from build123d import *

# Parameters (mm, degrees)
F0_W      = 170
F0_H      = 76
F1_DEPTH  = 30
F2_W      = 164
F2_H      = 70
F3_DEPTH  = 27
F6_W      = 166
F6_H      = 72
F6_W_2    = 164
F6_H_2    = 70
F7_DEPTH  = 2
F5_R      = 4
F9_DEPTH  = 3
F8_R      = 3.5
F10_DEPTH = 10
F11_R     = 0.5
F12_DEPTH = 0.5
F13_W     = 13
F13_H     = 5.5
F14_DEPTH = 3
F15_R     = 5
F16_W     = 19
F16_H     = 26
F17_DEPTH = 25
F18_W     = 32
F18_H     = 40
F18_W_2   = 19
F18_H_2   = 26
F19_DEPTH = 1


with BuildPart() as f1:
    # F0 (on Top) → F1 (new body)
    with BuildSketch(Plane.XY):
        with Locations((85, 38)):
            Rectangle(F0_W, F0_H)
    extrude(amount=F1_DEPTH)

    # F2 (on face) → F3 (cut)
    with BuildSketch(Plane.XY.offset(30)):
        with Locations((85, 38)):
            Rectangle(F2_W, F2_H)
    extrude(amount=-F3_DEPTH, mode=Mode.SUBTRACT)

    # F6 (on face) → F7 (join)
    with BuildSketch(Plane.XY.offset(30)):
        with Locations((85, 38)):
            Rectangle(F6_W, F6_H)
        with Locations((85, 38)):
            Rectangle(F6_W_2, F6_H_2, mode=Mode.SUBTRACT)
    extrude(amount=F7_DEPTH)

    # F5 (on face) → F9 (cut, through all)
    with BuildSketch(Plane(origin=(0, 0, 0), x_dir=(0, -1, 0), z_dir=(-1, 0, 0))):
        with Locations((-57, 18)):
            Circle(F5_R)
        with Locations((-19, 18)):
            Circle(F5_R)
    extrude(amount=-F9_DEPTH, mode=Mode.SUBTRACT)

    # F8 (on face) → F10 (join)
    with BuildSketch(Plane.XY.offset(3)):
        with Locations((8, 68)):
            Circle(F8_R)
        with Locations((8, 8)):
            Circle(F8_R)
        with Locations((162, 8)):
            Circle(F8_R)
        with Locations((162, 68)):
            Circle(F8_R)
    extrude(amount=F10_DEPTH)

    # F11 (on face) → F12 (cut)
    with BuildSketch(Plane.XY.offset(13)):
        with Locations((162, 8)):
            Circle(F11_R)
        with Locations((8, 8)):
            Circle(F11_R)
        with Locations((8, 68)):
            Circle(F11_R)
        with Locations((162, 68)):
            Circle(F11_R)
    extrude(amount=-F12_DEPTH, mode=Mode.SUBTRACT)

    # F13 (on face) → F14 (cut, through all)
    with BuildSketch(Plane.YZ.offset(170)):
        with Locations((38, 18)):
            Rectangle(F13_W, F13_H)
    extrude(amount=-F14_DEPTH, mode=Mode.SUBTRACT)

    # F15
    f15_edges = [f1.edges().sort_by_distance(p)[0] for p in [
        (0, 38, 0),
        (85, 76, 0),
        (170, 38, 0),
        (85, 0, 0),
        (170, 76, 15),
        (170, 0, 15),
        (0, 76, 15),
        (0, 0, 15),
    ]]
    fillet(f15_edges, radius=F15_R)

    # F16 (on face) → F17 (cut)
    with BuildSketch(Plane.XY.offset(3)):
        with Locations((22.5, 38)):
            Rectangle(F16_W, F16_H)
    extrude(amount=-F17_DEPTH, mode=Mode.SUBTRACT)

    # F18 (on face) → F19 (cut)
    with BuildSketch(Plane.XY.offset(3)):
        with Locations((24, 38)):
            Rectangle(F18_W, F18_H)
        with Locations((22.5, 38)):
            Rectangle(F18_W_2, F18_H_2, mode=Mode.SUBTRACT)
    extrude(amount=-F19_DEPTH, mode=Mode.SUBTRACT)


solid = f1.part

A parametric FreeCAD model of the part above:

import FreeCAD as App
import Part
import Sketcher
from FreeCAD import Vector
Q = App.Units.Quantity


def edges_at(feature, points):
    """Names of the edges that pass closest to the given points."""
    edges = feature.Shape.Edges
    near = lambda p: min(range(len(edges)), key=lambda i: edges[i].distToShape(Part.Vertex(*p))[0])
    return sorted({f"Edge{near(p) + 1}" for p in points})


def add_polygon(sketch, points):
    """Adds a closed chain of lines whose ends are joined by coincident constraints."""
    first, n = sketch.GeometryCount, len(points)
    for a, b in zip(points, points[1:] + points[:1]):
        sketch.addGeometry(Part.LineSegment(App.Vector(*a, 0), App.Vector(*b, 0)), False)
    for i in range(n):
        sketch.addConstraint(Sketcher.Constraint("Coincident", first + i, 2, first + (i + 1) % n, 1))

doc = App.newDocument("Part")
params = doc.addObject("Spreadsheet::Sheet", "Params")
for row, (alias, value) in enumerate([
    ("sketch1_width", "170 mm"),
    ("sketch1_height", "76 mm"),
    ("pad1_length", "30 mm"),
    ("sketch2_width", "164 mm"),
    ("sketch2_height", "70 mm"),
    ("pocket1_length", "27 mm"),
    ("sketch3_width", "166 mm"),
    ("sketch3_width2", "164 mm"),
    ("sketch3_height", "72 mm"),
    ("sketch3_height2", "70 mm"),
    ("pad2_length", "2 mm"),
    ("sketch4_diameter", "8 mm"),
    ("pocket2_length", "3 mm"),
    ("sketch5_diameter", "7 mm"),
    ("pad3_length", "10 mm"),
    ("sketch6_diameter", "1 mm"),
    ("pocket3_length", "0.5 mm"),
    ("sketch7_width", "13 mm"),
    ("sketch7_height", "5.5 mm"),
    ("pocket4_length", "3 mm"),
    ("fillet_radius", "5 mm"),
    ("sketch8_width", "19 mm"),
    ("sketch8_height", "26 mm"),
    ("pocket5_length", "25 mm"),
    ("sketch9_width", "32 mm"),
    ("sketch9_width2", "19 mm"),
    ("sketch9_height", "40 mm"),
    ("sketch9_height2", "26 mm"),
    ("pocket6_length", "1 mm"),
], start=1):
    params.set(f"A{row}", alias)
    params.set(f"B{row}", "=" + value)
    params.setAlias(f"B{row}", alias)

body = doc.addObject("PartDesign::Body", "Body")

# Sketch on XY plane
sketch1 = body.newObject("Sketcher::SketchObject", "Sketch")
sketch1.AttachmentSupport = (doc.getObject("XY_Plane"), [""])
sketch1.MapMode = "FlatFace"
add_polygon(sketch1, [(0, 76), (0, 0), (170, 0), (170, 76)])  # lines 0-3
sketch1.addConstraint(Sketcher.Constraint("Vertical", 0))
sketch1.addConstraint(Sketcher.Constraint("Horizontal", 1))
sketch1.addConstraint(Sketcher.Constraint("Vertical", 2))
sketch1.addConstraint(Sketcher.Constraint("Horizontal", 3))
sketch1.addConstraint(Sketcher.Constraint("Coincident", 0, 2, -1, 1))
sketch1.addConstraint(Sketcher.Constraint("DistanceX", 1, 1, 1, 2, Q("170 mm")))
sketch1.addConstraint(Sketcher.Constraint("DistanceY", 0, 2, 0, 1, Q("76 mm")))
sketch1.setExpression("Constraints[9]", "Params.sketch1_width")
sketch1.setExpression("Constraints[10]", "Params.sketch1_height")
pad1 = body.newObject("PartDesign::Pad", "Pad")
pad1.Profile = sketch1
pad1.setExpression("Length", "Params.pad1_length")

# Sketch on XY plane
sketch2 = body.newObject("Sketcher::SketchObject", "Sketch001")
sketch2.AttachmentSupport = (doc.getObject("XY_Plane"), [""])
sketch2.MapMode = "FlatFace"
sketch2.AttachmentOffset = App.Placement(Vector(0, 0, 30), App.Rotation())
add_polygon(sketch2, [(3, 73), (3, 3), (167, 3), (167, 73)])  # lines 0-3
sketch2.addConstraint(Sketcher.Constraint("Vertical", 0))
sketch2.addConstraint(Sketcher.Constraint("Horizontal", 1))
sketch2.addConstraint(Sketcher.Constraint("Vertical", 2))
sketch2.addConstraint(Sketcher.Constraint("Horizontal", 3))
sketch2.addConstraint(Sketcher.Constraint("DistanceX", 1, 1, 1, 2, Q("164 mm")))
sketch2.addConstraint(Sketcher.Constraint("DistanceY", 0, 2, 0, 1, Q("70 mm")))
sketch2.addConstraint(Sketcher.Constraint("DistanceX", -1, 1, 0, 2, Q("3 mm")))
sketch2.addConstraint(Sketcher.Constraint("DistanceY", -1, 1, 0, 2, Q("3 mm")))
sketch2.setExpression("Constraints[8]", "Params.sketch2_width")
sketch2.setExpression("Constraints[9]", "Params.sketch2_height")
pocket1 = body.newObject("PartDesign::Pocket", "Pocket")
pocket1.Profile = sketch2
pocket1.setExpression("Length", "Params.pocket1_length")

# Sketch on XY plane
sketch3 = body.newObject("Sketcher::SketchObject", "Sketch002")
sketch3.AttachmentSupport = (doc.getObject("XY_Plane"), [""])
sketch3.MapMode = "FlatFace"
sketch3.AttachmentOffset = App.Placement(Vector(0, 0, 30), App.Rotation())
add_polygon(sketch3, [(2, 74), (2, 2), (168, 2), (168, 74)])  # lines 0-3
add_polygon(sketch3, [(167, 3), (3, 3), (3, 73), (167, 73)])  # lines 4-7
sketch3.addConstraint(Sketcher.Constraint("Vertical", 0))
sketch3.addConstraint(Sketcher.Constraint("Horizontal", 1))
sketch3.addConstraint(Sketcher.Constraint("Vertical", 2))
sketch3.addConstraint(Sketcher.Constraint("Horizontal", 3))
sketch3.addConstraint(Sketcher.Constraint("Horizontal", 4))
sketch3.addConstraint(Sketcher.Constraint("Vertical", 5))
sketch3.addConstraint(Sketcher.Constraint("Horizontal", 6))
sketch3.addConstraint(Sketcher.Constraint("Vertical", 7))
sketch3.addConstraint(Sketcher.Constraint("DistanceX", 1, 1, 1, 2, Q("166 mm")))
sketch3.addConstraint(Sketcher.Constraint("DistanceX", 4, 2, 4, 1, Q("164 mm")))
sketch3.addConstraint(Sketcher.Constraint("DistanceY", 0, 2, 0, 1, Q("72 mm")))
sketch3.addConstraint(Sketcher.Constraint("DistanceY", 5, 1, 5, 2, Q("70 mm")))
sketch3.addConstraint(Sketcher.Constraint("DistanceX", -1, 1, 0, 2, Q("2 mm")))
sketch3.addConstraint(Sketcher.Constraint("DistanceY", -1, 1, 0, 2, Q("2 mm")))
sketch3.addConstraint(Sketcher.Constraint("DistanceX", -1, 1, 4, 2, Q("3 mm")))
sketch3.addConstraint(Sketcher.Constraint("DistanceY", -1, 1, 4, 2, Q("3 mm")))
sketch3.setExpression("Constraints[16]", "Params.sketch3_width")
sketch3.setExpression("Constraints[17]", "Params.sketch3_width2")
sketch3.setExpression("Constraints[18]", "Params.sketch3_height")
sketch3.setExpression("Constraints[19]", "Params.sketch3_height2")
pad2 = body.newObject("PartDesign::Pad", "Pad001")
pad2.Profile = sketch3
pad2.setExpression("Length", "Params.pad2_length")

# Sketch on YZ plane
sketch4 = body.newObject("Sketcher::SketchObject", "Sketch003")
sketch4.AttachmentSupport = (doc.getObject("YZ_Plane"), [""])
sketch4.MapMode = "FlatFace"
sketch4.addGeometry(Part.Circle(Vector(57, 18, 0), Vector(0, 0, 1), 4), False)
sketch4.addGeometry(Part.Circle(Vector(19, 18, 0), Vector(0, 0, 1), 4), False)
sketch4.addConstraint(Sketcher.Constraint("Equal", 0, 1))
sketch4.addConstraint(Sketcher.Constraint("Horizontal", 0, 3, 1, 3))
sketch4.addConstraint(Sketcher.Constraint("Diameter", 0, Q("8 mm")))
sketch4.addConstraint(Sketcher.Constraint("DistanceX", -1, 1, 0, 3, Q("57 mm")))
sketch4.addConstraint(Sketcher.Constraint("DistanceY", -1, 1, 0, 3, Q("18 mm")))
sketch4.addConstraint(Sketcher.Constraint("DistanceX", -1, 1, 1, 3, Q("19 mm")))
sketch4.setExpression("Constraints[2]", "Params.sketch4_diameter")
pocket2 = body.newObject("PartDesign::Pocket", "Pocket001")
pocket2.Profile = sketch4
pocket2.setExpression("Length", "Params.pocket2_length")
pocket2.Reversed = True

# Sketch on XY plane
sketch5 = body.newObject("Sketcher::SketchObject", "Sketch004")
sketch5.AttachmentSupport = (doc.getObject("XY_Plane"), [""])
sketch5.MapMode = "FlatFace"
sketch5.AttachmentOffset = App.Placement(Vector(0, 0, 3), App.Rotation())
sketch5.addGeometry(Part.Circle(Vector(8, 68, 0), Vector(0, 0, 1), 3.5), False)
sketch5.addGeometry(Part.Circle(Vector(8, 8, 0), Vector(0, 0, 1), 3.5), False)
sketch5.addGeometry(Part.Circle(Vector(162, 8, 0), Vector(0, 0, 1), 3.5), False)
sketch5.addGeometry(Part.Circle(Vector(162, 68, 0), Vector(0, 0, 1), 3.5), False)
sketch5.addConstraint(Sketcher.Constraint("Equal", 0, 1))
sketch5.addConstraint(Sketcher.Constraint("Equal", 1, 2))
sketch5.addConstraint(Sketcher.Constraint("Equal", 2, 3))
sketch5.addConstraint(Sketcher.Constraint("Horizontal", 1, 3, 2, 3))
sketch5.addConstraint(Sketcher.Constraint("Horizontal", 0, 3, 3, 3))
sketch5.addConstraint(Sketcher.Constraint("Vertical", 0, 3, 1, 3))
sketch5.addConstraint(Sketcher.Constraint("Vertical", 2, 3, 3, 3))
sketch5.addConstraint(Sketcher.Constraint("Diameter", 0, Q("7 mm")))
sketch5.addConstraint(Sketcher.Constraint("DistanceX", -1, 1, 0, 3, Q("8 mm")))
sketch5.addConstraint(Sketcher.Constraint("DistanceY", -1, 1, 0, 3, Q("68 mm")))
sketch5.addConstraint(Sketcher.Constraint("DistanceY", -1, 1, 1, 3, Q("8 mm")))
sketch5.addConstraint(Sketcher.Constraint("DistanceX", -1, 1, 2, 3, Q("162 mm")))
sketch5.setExpression("Constraints[7]", "Params.sketch5_diameter")
pad3 = body.newObject("PartDesign::Pad", "Pad002")
pad3.Profile = sketch5
pad3.setExpression("Length", "Params.pad3_length")

# Sketch on XY plane
sketch6 = body.newObject("Sketcher::SketchObject", "Sketch005")
sketch6.AttachmentSupport = (doc.getObject("XY_Plane"), [""])
sketch6.MapMode = "FlatFace"
sketch6.AttachmentOffset = App.Placement(Vector(0, 0, 13), App.Rotation())
sketch6.addGeometry(Part.Circle(Vector(162, 8, 0), Vector(0, 0, 1), 0.5), False)
sketch6.addGeometry(Part.Circle(Vector(8, 8, 0), Vector(0, 0, 1), 0.5), False)
sketch6.addGeometry(Part.Circle(Vector(8, 68, 0), Vector(0, 0, 1), 0.5), False)
sketch6.addGeometry(Part.Circle(Vector(162, 68, 0), Vector(0, 0, 1), 0.5), False)
sketch6.addConstraint(Sketcher.Constraint("Equal", 0, 1))
sketch6.addConstraint(Sketcher.Constraint("Equal", 1, 2))
sketch6.addConstraint(Sketcher.Constraint("Equal", 2, 3))
sketch6.addConstraint(Sketcher.Constraint("Horizontal", 0, 3, 1, 3))
sketch6.addConstraint(Sketcher.Constraint("Horizontal", 2, 3, 3, 3))
sketch6.addConstraint(Sketcher.Constraint("Vertical", 1, 3, 2, 3))
sketch6.addConstraint(Sketcher.Constraint("Vertical", 0, 3, 3, 3))
sketch6.addConstraint(Sketcher.Constraint("Diameter", 0, Q("1 mm")))
sketch6.addConstraint(Sketcher.Constraint("DistanceX", -1, 1, 0, 3, Q("162 mm")))
sketch6.addConstraint(Sketcher.Constraint("DistanceY", -1, 1, 0, 3, Q("8 mm")))
sketch6.addConstraint(Sketcher.Constraint("DistanceX", -1, 1, 1, 3, Q("8 mm")))
sketch6.addConstraint(Sketcher.Constraint("DistanceY", -1, 1, 2, 3, Q("68 mm")))
sketch6.setExpression("Constraints[7]", "Params.sketch6_diameter")
pocket3 = body.newObject("PartDesign::Pocket", "Pocket002")
pocket3.Profile = sketch6
pocket3.setExpression("Length", "Params.pocket3_length")

# Sketch on YZ plane
sketch7 = body.newObject("Sketcher::SketchObject", "Sketch006")
sketch7.AttachmentSupport = (doc.getObject("YZ_Plane"), [""])
sketch7.MapMode = "FlatFace"
sketch7.AttachmentOffset = App.Placement(Vector(0, 0, 170), App.Rotation())
add_polygon(sketch7, [(32, 21), (32, 15), (44, 15), (44, 21)])  # lines 0-3
sketch7.addConstraint(Sketcher.Constraint("Vertical", 0))
sketch7.addConstraint(Sketcher.Constraint("Horizontal", 1))
sketch7.addConstraint(Sketcher.Constraint("Vertical", 2))
sketch7.addConstraint(Sketcher.Constraint("Horizontal", 3))
sketch7.addConstraint(Sketcher.Constraint("DistanceX", 1, 1, 1, 2, Q("13 mm")))
sketch7.addConstraint(Sketcher.Constraint("DistanceY", 0, 2, 0, 1, Q("5.5 mm")))
sketch7.addConstraint(Sketcher.Constraint("DistanceX", -1, 1, 0, 2, Q("31.5 mm")))
sketch7.addConstraint(Sketcher.Constraint("DistanceY", -1, 1, 0, 2, Q("15.25 mm")))
sketch7.setExpression("Constraints[8]", "Params.sketch7_width")
sketch7.setExpression("Constraints[9]", "Params.sketch7_height")
pocket4 = body.newObject("PartDesign::Pocket", "Pocket003")
pocket4.Profile = sketch7
pocket4.setExpression("Length", "Params.pocket4_length")
doc.recompute()

fillet = body.newObject("PartDesign::Fillet", "Fillet")
fillet.Base = (pocket4, edges_at(pocket4, [
    (0, 38, 0),
    (85, 76, 0),
    (170, 38, 0),
    (85, 0, 0),
    (170, 76, 15),
    (170, 0, 15),
    (0, 76, 15),
    (0, 0, 15),
]))
fillet.setExpression("Radius", "Params.fillet_radius")

# Sketch on XY plane
sketch8 = body.newObject("Sketcher::SketchObject", "Sketch007")
sketch8.AttachmentSupport = (doc.getObject("XY_Plane"), [""])
sketch8.MapMode = "FlatFace"
sketch8.AttachmentOffset = App.Placement(Vector(0, 0, 3), App.Rotation())
add_polygon(sketch8, [(13, 51), (13, 25), (32, 25), (32, 51)])  # lines 0-3
sketch8.addConstraint(Sketcher.Constraint("Vertical", 0))
sketch8.addConstraint(Sketcher.Constraint("Horizontal", 1))
sketch8.addConstraint(Sketcher.Constraint("Vertical", 2))
sketch8.addConstraint(Sketcher.Constraint("Horizontal", 3))
sketch8.addConstraint(Sketcher.Constraint("DistanceX", 1, 1, 1, 2, Q("19 mm")))
sketch8.addConstraint(Sketcher.Constraint("DistanceY", 0, 2, 0, 1, Q("26 mm")))
sketch8.addConstraint(Sketcher.Constraint("DistanceX", -1, 1, 0, 2, Q("13 mm")))
sketch8.addConstraint(Sketcher.Constraint("DistanceY", -1, 1, 0, 2, Q("25 mm")))
sketch8.setExpression("Constraints[8]", "Params.sketch8_width")
sketch8.setExpression("Constraints[9]", "Params.sketch8_height")
pocket5 = body.newObject("PartDesign::Pocket", "Pocket004")
pocket5.Profile = sketch8
pocket5.setExpression("Length", "Params.pocket5_length")

# Sketch on XY plane
sketch9 = body.newObject("Sketcher::SketchObject", "Sketch008")
sketch9.AttachmentSupport = (doc.getObject("XY_Plane"), [""])
sketch9.MapMode = "FlatFace"
sketch9.AttachmentOffset = App.Placement(Vector(0, 0, 3), App.Rotation())
add_polygon(sketch9, [(8, 58), (8, 18), (40, 18), (40, 58)])  # lines 0-3
add_polygon(sketch9, [(32, 25), (13, 25), (13, 51), (32, 51)])  # lines 4-7
sketch9.addConstraint(Sketcher.Constraint("Vertical", 0))
sketch9.addConstraint(Sketcher.Constraint("Horizontal", 1))
sketch9.addConstraint(Sketcher.Constraint("Vertical", 2))
sketch9.addConstraint(Sketcher.Constraint("Horizontal", 3))
sketch9.addConstraint(Sketcher.Constraint("Horizontal", 4))
sketch9.addConstraint(Sketcher.Constraint("Vertical", 5))
sketch9.addConstraint(Sketcher.Constraint("Horizontal", 6))
sketch9.addConstraint(Sketcher.Constraint("Vertical", 7))
sketch9.addConstraint(Sketcher.Constraint("DistanceX", 1, 1, 1, 2, Q("32 mm")))
sketch9.addConstraint(Sketcher.Constraint("DistanceX", 4, 2, 4, 1, Q("19 mm")))
sketch9.addConstraint(Sketcher.Constraint("DistanceY", 0, 2, 0, 1, Q("40 mm")))
sketch9.addConstraint(Sketcher.Constraint("DistanceY", 5, 1, 5, 2, Q("26 mm")))
sketch9.addConstraint(Sketcher.Constraint("DistanceX", -1, 1, 0, 2, Q("8 mm")))
sketch9.addConstraint(Sketcher.Constraint("DistanceY", -1, 1, 0, 2, Q("18 mm")))
sketch9.addConstraint(Sketcher.Constraint("DistanceX", -1, 1, 4, 2, Q("13 mm")))
sketch9.addConstraint(Sketcher.Constraint("DistanceY", -1, 1, 4, 2, Q("25 mm")))
sketch9.setExpression("Constraints[16]", "Params.sketch9_width")
sketch9.setExpression("Constraints[17]", "Params.sketch9_width2")
sketch9.setExpression("Constraints[18]", "Params.sketch9_height")
sketch9.setExpression("Constraints[19]", "Params.sketch9_height2")
pocket6 = body.newObject("PartDesign::Pocket", "Pocket005")
pocket6.Profile = sketch9
pocket6.setExpression("Length", "Params.pocket6_length")

doc.recompute()
